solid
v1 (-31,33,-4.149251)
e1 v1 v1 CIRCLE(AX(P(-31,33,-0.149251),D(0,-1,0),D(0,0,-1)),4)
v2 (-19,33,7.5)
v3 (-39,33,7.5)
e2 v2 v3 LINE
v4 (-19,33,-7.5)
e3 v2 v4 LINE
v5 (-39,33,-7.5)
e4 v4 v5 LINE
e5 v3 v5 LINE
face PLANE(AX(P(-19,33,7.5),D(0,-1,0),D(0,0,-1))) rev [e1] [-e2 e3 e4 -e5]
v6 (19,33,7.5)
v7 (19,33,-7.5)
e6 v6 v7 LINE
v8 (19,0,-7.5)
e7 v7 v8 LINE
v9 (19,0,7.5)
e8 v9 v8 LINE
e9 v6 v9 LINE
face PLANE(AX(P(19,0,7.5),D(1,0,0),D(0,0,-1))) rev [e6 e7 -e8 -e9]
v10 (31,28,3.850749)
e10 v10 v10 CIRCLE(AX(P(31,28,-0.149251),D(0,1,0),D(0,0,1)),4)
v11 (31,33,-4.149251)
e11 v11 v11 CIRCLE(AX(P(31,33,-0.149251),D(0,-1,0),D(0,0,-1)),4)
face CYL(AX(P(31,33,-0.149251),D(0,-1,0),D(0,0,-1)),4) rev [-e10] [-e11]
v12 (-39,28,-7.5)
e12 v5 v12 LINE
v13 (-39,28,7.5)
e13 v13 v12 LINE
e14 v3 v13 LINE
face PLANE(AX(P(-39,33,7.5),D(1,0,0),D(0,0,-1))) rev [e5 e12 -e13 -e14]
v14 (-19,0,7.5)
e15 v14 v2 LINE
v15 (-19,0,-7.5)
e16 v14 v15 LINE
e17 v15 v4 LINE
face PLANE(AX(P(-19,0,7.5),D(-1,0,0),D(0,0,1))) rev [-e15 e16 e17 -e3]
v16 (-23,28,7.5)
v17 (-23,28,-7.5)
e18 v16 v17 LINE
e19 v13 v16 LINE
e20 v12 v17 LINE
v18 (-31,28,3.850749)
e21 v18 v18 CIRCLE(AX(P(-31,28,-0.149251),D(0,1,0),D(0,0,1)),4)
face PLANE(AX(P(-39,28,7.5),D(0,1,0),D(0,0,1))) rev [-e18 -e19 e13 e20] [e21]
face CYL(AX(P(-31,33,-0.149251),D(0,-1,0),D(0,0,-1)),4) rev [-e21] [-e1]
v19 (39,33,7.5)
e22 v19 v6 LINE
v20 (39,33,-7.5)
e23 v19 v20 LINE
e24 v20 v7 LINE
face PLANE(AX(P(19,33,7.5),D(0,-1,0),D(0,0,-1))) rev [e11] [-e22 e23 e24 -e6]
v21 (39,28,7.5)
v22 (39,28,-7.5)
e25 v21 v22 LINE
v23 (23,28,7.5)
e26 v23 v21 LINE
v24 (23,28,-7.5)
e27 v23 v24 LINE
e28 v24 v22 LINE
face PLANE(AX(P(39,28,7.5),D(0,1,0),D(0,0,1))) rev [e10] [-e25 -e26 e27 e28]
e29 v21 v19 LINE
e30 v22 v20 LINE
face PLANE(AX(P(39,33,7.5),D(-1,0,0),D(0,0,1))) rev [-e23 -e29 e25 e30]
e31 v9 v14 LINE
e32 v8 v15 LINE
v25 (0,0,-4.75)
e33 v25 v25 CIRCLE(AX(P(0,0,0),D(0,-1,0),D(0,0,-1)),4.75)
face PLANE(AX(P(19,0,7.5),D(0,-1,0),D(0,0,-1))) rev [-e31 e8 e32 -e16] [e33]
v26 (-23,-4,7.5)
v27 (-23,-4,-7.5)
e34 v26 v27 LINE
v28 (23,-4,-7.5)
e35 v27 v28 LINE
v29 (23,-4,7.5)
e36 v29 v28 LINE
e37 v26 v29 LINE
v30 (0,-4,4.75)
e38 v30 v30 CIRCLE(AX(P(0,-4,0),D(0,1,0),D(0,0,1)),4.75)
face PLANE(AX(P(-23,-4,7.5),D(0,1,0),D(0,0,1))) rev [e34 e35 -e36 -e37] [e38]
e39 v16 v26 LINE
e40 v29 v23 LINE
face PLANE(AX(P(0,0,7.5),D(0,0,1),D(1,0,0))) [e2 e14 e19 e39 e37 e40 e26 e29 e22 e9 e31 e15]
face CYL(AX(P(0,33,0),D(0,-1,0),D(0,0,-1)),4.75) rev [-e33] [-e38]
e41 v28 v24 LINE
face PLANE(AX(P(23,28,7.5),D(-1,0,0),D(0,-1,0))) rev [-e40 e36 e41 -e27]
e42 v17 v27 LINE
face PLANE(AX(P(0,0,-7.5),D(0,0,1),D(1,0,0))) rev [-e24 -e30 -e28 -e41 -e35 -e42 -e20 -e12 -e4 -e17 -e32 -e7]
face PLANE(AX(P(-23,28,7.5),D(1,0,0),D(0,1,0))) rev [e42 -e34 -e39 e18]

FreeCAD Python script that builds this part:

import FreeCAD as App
import Part
import Sketcher
from FreeCAD import Vector

doc = App.newDocument("Part")
body = doc.addObject("PartDesign::Body", "Body")

sketch1 = body.newObject("Sketcher::SketchObject", "Sketch")
sketch1.AttachmentSupport = (doc.getObject("XY_Plane"), [""])
sketch1.MapMode = "FlatFace"
sketch1.addGeometry([
    Part.LineSegment(Vector(19, 0, 0), Vector(-19, 0, 0)),
    Part.LineSegment(Vector(-19, 0, 0), Vector(-19, 33, 0)),
    Part.LineSegment(Vector(-19, 33, 0), Vector(-39, 33, 0)),
    Part.LineSegment(Vector(-39, 33, 0), Vector(-39, 28, 0)),
    Part.LineSegment(Vector(-39, 28, 0), Vector(-23, 28, 0)),
    Part.LineSegment(Vector(-23, 28, 0), Vector(-23, -4, 0)),
    Part.LineSegment(Vector(-23, -4, 0), Vector(23, -4, 0)),
    Part.LineSegment(Vector(23, -4, 0), Vector(23, 28, 0)),
    Part.LineSegment(Vector(23, 28, 0), Vector(39, 28, 0)),
    Part.LineSegment(Vector(39, 28, 0), Vector(39, 33, 0)),
    Part.LineSegment(Vector(39, 33, 0), Vector(19, 33, 0)),
    Part.LineSegment(Vector(19, 33, 0), Vector(19, 0, 0)),
], False)
sketch1.addConstraint([
    Sketcher.Constraint("Coincident", 0, 2, 1, 1),
    Sketcher.Constraint("Coincident", 1, 2, 2, 1),
    Sketcher.Constraint("Coincident", 2, 2, 3, 1),
    Sketcher.Constraint("Coincident", 3, 2, 4, 1),
    Sketcher.Constraint("Coincident", 4, 2, 5, 1),
    Sketcher.Constraint("Coincident", 5, 2, 6, 1),
    Sketcher.Constraint("Coincident", 6, 2, 7, 1),
    Sketcher.Constraint("Coincident", 7, 2, 8, 1),
    Sketcher.Constraint("Coincident", 8, 2, 9, 1),
    Sketcher.Constraint("Coincident", 9, 2, 10, 1),
    Sketcher.Constraint("Coincident", 10, 2, 11, 1),
    Sketcher.Constraint("Coincident", 11, 2, 0, 1),
    Sketcher.Constraint("Horizontal", 0),
    Sketcher.Constraint("Vertical", 1),
    Sketcher.Constraint("Horizontal", 2),
    Sketcher.Constraint("Vertical", 3),
    Sketcher.Constraint("Horizontal", 4),
    Sketcher.Constraint("Vertical", 5),
    Sketcher.Constraint("Horizontal", 6),
    Sketcher.Constraint("Vertical", 7),
    Sketcher.Constraint("Horizontal", 8),
    Sketcher.Constraint("Vertical", 9),
    Sketcher.Constraint("Horizontal", 10),
    Sketcher.Constraint("Vertical", 11),
    Sketcher.Constraint("Symmetric", 0, 2, 11, 2, -1, 1),
    Sketcher.Constraint("Symmetric", 4, 2, 7, 2, -2),
    Sketcher.Constraint("Symmetric", 2, 2, 9, 2, -2),
    Sketcher.Constraint("DistanceX", 0, 2, 0, 1, 38.0),
    Sketcher.Constraint("DistanceX", 2, 2, 2, 1, 20.0),
    Sketcher.Constraint("DistanceX", 4, 1, 4, 2, 16.0),
    Sketcher.Constraint("DistanceY", 1, 1, 1, 2, 33.0),
    Sketcher.Constraint("DistanceY", 3, 2, 3, 1, 5.0),
    Sketcher.Constraint("DistanceY", 5, 2, 5, 1, 32.0),
])
pad1 = body.newObject("PartDesign::Pad", "Pad")
pad1.Profile = sketch1
pad1.Length = 15
pad1.Midplane = True

sketch2 = body.newObject("Sketcher::SketchObject", "Sketch001")
sketch2.AttachmentSupport = (doc.getObject("XZ_Plane"), [""])
sketch2.MapMode = "FlatFace"
sketch2.AttachmentOffset = App.Placement(Vector(0, 0, 4), App.Rotation())
sketch2.addGeometry(Part.Circle(Vector(0, 0, 0), Vector(0, 0, 1), 4.8), False)
sketch2.addConstraint([
    Sketcher.Constraint("Coincident", 0, 3, -1, 1),
    Sketcher.Constraint("Diameter", 0, 9.5),
])
pocket1 = body.newObject("PartDesign::Pocket", "Pocket")
pocket1.Profile = sketch2
pocket1.Type = "ThroughAll"
pocket1.Midplane = True

sketch3 = body.newObject("Sketcher::SketchObject", "Sketch002")
sketch3.AttachmentSupport = (doc.getObject("XZ_Plane"), [""])
sketch3.MapMode = "FlatFace"
sketch3.AttachmentOffset = App.Placement(Vector(0, 0, -28), App.Rotation())
sketch3.addGeometry([
    Part.Circle(Vector(-31, -0.1, 0), Vector(0, 0, 1), 4),
    Part.Circle(Vector(31, -0.1, 0), Vector(0, 0, 1), 4),
], False)
sketch3.addConstraint([
    Sketcher.Constraint("Equal", 0, 1),
    Sketcher.Constraint("Symmetric", 0, 3, 1, 3, -2),
    Sketcher.Constraint("Diameter", 0, 8.0),
    Sketcher.Constraint("DistanceX", 0, 3, -1, 1, 31.0),
    Sketcher.Constraint("DistanceY", 0, 3, -1, 1, 0.149251),
])
pocket2 = body.newObject("PartDesign::Pocket", "Pocket001")
pocket2.Profile = sketch3
pocket2.Type = "ThroughAll"
pocket2.Midplane = True

doc.recompute()
